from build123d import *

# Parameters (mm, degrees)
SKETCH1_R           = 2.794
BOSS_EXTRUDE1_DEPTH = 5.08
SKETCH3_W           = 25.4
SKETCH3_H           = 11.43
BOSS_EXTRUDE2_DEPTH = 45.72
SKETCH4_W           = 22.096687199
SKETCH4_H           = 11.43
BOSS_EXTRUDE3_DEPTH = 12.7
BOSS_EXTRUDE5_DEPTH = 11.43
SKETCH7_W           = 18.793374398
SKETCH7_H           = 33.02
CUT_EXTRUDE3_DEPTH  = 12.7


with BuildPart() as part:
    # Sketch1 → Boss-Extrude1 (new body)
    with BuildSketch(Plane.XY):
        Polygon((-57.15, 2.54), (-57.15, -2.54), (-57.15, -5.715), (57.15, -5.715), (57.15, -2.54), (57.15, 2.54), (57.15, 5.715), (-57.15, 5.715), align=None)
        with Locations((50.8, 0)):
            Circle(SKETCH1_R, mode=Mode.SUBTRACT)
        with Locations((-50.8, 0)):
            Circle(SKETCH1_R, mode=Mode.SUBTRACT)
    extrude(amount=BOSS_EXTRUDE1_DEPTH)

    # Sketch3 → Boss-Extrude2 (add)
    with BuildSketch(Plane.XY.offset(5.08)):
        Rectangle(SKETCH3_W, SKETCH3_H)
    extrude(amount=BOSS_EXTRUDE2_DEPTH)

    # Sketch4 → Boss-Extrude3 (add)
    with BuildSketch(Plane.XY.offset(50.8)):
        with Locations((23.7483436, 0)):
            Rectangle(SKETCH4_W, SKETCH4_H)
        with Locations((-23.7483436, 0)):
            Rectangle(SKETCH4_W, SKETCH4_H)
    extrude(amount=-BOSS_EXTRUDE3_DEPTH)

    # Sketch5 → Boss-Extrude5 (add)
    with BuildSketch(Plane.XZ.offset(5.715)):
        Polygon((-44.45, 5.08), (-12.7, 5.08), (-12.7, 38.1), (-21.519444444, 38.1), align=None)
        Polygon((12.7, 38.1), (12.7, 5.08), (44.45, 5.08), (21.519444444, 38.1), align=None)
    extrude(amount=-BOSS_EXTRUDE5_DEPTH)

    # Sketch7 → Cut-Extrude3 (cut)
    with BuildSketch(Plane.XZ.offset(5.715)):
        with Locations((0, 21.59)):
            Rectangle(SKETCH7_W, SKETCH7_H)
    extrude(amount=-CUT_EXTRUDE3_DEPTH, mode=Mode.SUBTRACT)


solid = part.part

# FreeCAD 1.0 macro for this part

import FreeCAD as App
import Part
import Sketcher
from FreeCAD import Vector
Q = App.Units.Quantity

doc = App.newDocument("Part")
body = doc.addObject("PartDesign::Body", "Body")

sketch1 = body.newObject("Sketcher::SketchObject", "Sketch")
sketch1.AttachmentSupport = (doc.getObject("XY_Plane"), [""])
sketch1.MapMode = "FlatFace"
sketch1.addGeometry([
    Part.LineSegment(Vector(-57.15, -5.715, 0), Vector(57.15, -5.715, 0)),
    Part.LineSegment(Vector(57.15, -5.715, 0), Vector(57.15, 5.715, 0)),
    Part.LineSegment(Vector(57.15, 5.715, 0), Vector(-57.15, 5.715, 0)),
    Part.LineSegment(Vector(-57.15, 5.715, 0), Vector(-57.15, -5.715, 0)),
    Part.Circle(Vector(-50.8, 0, 0), Vector(0, 0, 1), 2.794),
    Part.Circle(Vector(50.8, 0, 0), Vector(0, 0, 1), 2.794),
], False)
sketch1.addConstraint([
    Sketcher.Constraint("Coincident", 0, 2, 1, 1),
    Sketcher.Constraint("Coincident", 1, 2, 2, 1),
    Sketcher.Constraint("Coincident", 2, 2, 3, 1),
    Sketcher.Constraint("Coincident", 3, 2, 0, 1),
    Sketcher.Constraint("Horizontal", 0),
    Sketcher.Constraint("Vertical", 1),
    Sketcher.Constraint("Horizontal", 2),
    Sketcher.Constraint("Vertical", 3),
    Sketcher.Constraint("Equal", 4, 5),
    Sketcher.Constraint("Symmetric", 4, 3, 5, 3, -1, 1),
    Sketcher.Constraint("Symmetric", 0, 2, 2, 2, -1, 1),
    Sketcher.Constraint("PointOnObject", 4, 3, -1),
    Sketcher.Constraint("Diameter", 4, Q("0.22 in")),
    Sketcher.Constraint("DistanceX", 0, 1, 0, 2, Q("4.5 in")),
    Sketcher.Constraint("DistanceX", 4, 3, -1, 1, Q("2 in")),
    Sketcher.Constraint("DistanceY", 1, 1, 1, 2, Q("0.45 in")),
])
pad1 = body.newObject("PartDesign::Pad", "Pad")
pad1.Profile = sketch1
pad1.Length = Q("0.2 in")

sketch2 = body.newObject("Sketcher::SketchObject", "Sketch001")
sketch2.AttachmentSupport = (doc.getObject("XY_Plane"), [""])
sketch2.MapMode = "FlatFace"
sketch2.AttachmentOffset = App.Placement(Vector(0, 0, 0.2 * 25.4), App.Rotation())
sketch2.addGeometry([
    Part.LineSegment(Vector(-12.7, 5.715, 0), Vector(-12.7, -5.715, 0)),
    Part.LineSegment(Vector(-12.7, -5.715, 0), Vector(12.7, -5.715, 0)),
    Part.LineSegment(Vector(12.7, -5.715, 0), Vector(12.7, 5.715, 0)),
    Part.LineSegment(Vector(12.7, 5.715, 0), Vector(-12.7, 5.715, 0)),
], False)
sketch2.addConstraint([
    Sketcher.Constraint("Coincident", 0, 2, 1, 1),
    Sketcher.Constraint("Coincident", 1, 2, 2, 1),
    Sketcher.Constraint("Coincident", 2, 2, 3, 1),
    Sketcher.Constraint("Coincident", 3, 2, 0, 1),
    Sketcher.Constraint("Vertical", 0),
    Sketcher.Constraint("Horizontal", 1),
    Sketcher.Constraint("Vertical", 2),
    Sketcher.Constraint("Horizontal", 3),
    Sketcher.Constraint("Symmetric", 0, 2, 2, 2, -1, 1),
    Sketcher.Constraint("DistanceX", 1, 1, 1, 2, Q("1 in")),
    Sketcher.Constraint("DistanceY", 0, 2, 0, 1, Q("0.45 in")),
])
pad2 = body.newObject("PartDesign::Pad", "Pad001")
pad2.Profile = sketch2
pad2.Length = Q("1.8 in")

sketch3 = body.newObject("Sketcher::SketchObject", "Sketch002")
sketch3.AttachmentSupport = (doc.getObject("XY_Plane"), [""])
sketch3.MapMode = "FlatFace"
sketch3.AttachmentOffset = App.Placement(Vector(0, 0, 2 * 25.4), App.Rotation())
sketch3.addGeometry([
    Part.LineSegment(Vector(12.7, 5.715, 0), Vector(12.7, -5.715, 0)),
    Part.LineSegment(Vector(12.7, -5.715, 0), Vector(34.796687, -5.715, 0)),
    Part.LineSegment(Vector(34.796687, -5.715, 0), Vector(34.796687, 5.715, 0)),
    Part.LineSegment(Vector(34.796687, 5.715, 0), Vector(12.7, 5.715, 0)),
    Part.LineSegment(Vector(-34.796687, 5.715, 0), Vector(-34.796687, -5.715, 0)),
    Part.LineSegment(Vector(-34.796687, -5.715, 0), Vector(-12.7, -5.715, 0)),
    Part.LineSegment(Vector(-12.7, -5.715, 0), Vector(-12.7, 5.715, 0)),
    Part.LineSegment(Vector(-12.7, 5.715, 0), Vector(-34.796687, 5.715, 0)),
], False)
sketch3.addConstraint([
    Sketcher.Constraint("Coincident", 0, 2, 1, 1),
    Sketcher.Constraint("Coincident", 1, 2, 2, 1),
    Sketcher.Constraint("Coincident", 2, 2, 3, 1),
    Sketcher.Constraint("Coincident", 3, 2, 0, 1),
    Sketcher.Constraint("Coincident", 4, 2, 5, 1),
    Sketcher.Constraint("Coincident", 5, 2, 6, 1),
    Sketcher.Constraint("Coincident", 6, 2, 7, 1),
    Sketcher.Constraint("Coincident", 7, 2, 4, 1),
    Sketcher.Constraint("Vertical", 0),
    Sketcher.Constraint("Horizontal", 1),
    Sketcher.Constraint("Vertical", 2),
    Sketcher.Constraint("Horizontal", 3),
    Sketcher.Constraint("Vertical", 4),
    Sketcher.Constraint("Horizontal", 5),
    Sketcher.Constraint("Vertical", 6),
    Sketcher.Constraint("Horizontal", 7),
    Sketcher.Constraint("Symmetric", 2, 2, 4, 2, -1, 1),
    Sketcher.Constraint("Symmetric", 0, 2, 6, 2, -1, 1),
    Sketcher.Constraint("Horizontal", 1, 2, 4, 2),
    Sketcher.Constraint("DistanceX", 5, 2, 0, 2, Q("1 in")),
    Sketcher.Constraint("DistanceY", 0, 2, 0, 1, Q("0.45 in")),
    Sketcher.Constraint("DistanceX", 1, 1, 1, 2, Q("22.096687 mm")),
])
pad3 = body.newObject("PartDesign::Pad", "Pad002")
pad3.Profile = sketch3
pad3.Length = Q("0.5 in")
pad3.Reversed = True

sketch4 = body.newObject("Sketcher::SketchObject", "Sketch003")
sketch4.AttachmentSupport = (doc.getObject("XZ_Plane"), [""])
sketch4.MapMode = "FlatFace"
sketch4.AttachmentOffset = App.Placement(Vector(0, 0, 0.225 * 25.4), App.Rotation())
sketch4.addGeometry([
    Part.LineSegment(Vector(-44.45, 5.08, 0), Vector(-12.7, 5.08, 0)),
    Part.LineSegment(Vector(-12.7, 5.08, 0), Vector(-12.7, 38.1, 0)),
    Part.LineSegment(Vector(-12.7, 38.1, 0), Vector(-21.519444, 38.1, 0)),
    Part.LineSegment(Vector(-21.519444, 38.1, 0), Vector(-44.45, 5.08, 0)),
    Part.LineSegment(Vector(12.7, 38.1, 0), Vector(12.7, 5.08, 0)),
    Part.LineSegment(Vector(12.7, 5.08, 0), Vector(44.45, 5.08, 0)),
    Part.LineSegment(Vector(44.45, 5.08, 0), Vector(21.519444, 38.1, 0)),
    Part.LineSegment(Vector(21.519444, 38.1, 0), Vector(12.7, 38.1, 0)),
], False)
sketch4.addConstraint([
    Sketcher.Constraint("Coincident", 0, 2, 1, 1),
    Sketcher.Constraint("Coincident", 1, 2, 2, 1),
    Sketcher.Constraint("Coincident", 2, 2, 3, 1),
    Sketcher.Constraint("Coincident", 3, 2, 0, 1),
    Sketcher.Constraint("Coincident", 4, 2, 5, 1),
    Sketcher.Constraint("Coincident", 5, 2, 6, 1),
    Sketcher.Constraint("Coincident", 6, 2, 7, 1),
    Sketcher.Constraint("Coincident", 7, 2, 4, 1),
    Sketcher.Constraint("Horizontal", 0),
    Sketcher.Constraint("Vertical", 1),
    Sketcher.Constraint("Horizontal", 2),
    Sketcher.Constraint("Vertical", 4),
    Sketcher.Constraint("Horizontal", 5),
    Sketcher.Constraint("Horizontal", 7),
    Sketcher.Constraint("Symmetric", 0, 2, 4, 2, -2),
    Sketcher.Constraint("Symmetric", 2, 2, 6, 2, -2),
    Sketcher.Constraint("Equal", 0, 5),
    Sketcher.Constraint("DistanceY", 1, 1, 1, 2, Q("1.3 in")),
    Sketcher.Constraint("DistanceX", 0, 2, 4, 2, Q("1 in")),
    Sketcher.Constraint("DistanceX", 0, 1, 0, 2, Q("1.25 in")),
    Sketcher.Constraint("DistanceY", -1, 1, 0, 2, Q("0.2 in")),
    Sketcher.Constraint("Distance", 3, Q("40.201129 mm")),
])
pad4 = body.newObject("PartDesign::Pad", "Pad003")
pad4.Profile = sketch4
pad4.Length = Q("0.45 in")
pad4.Reversed = True

sketch5 = body.newObject("Sketcher::SketchObject", "Sketch004")
sketch5.AttachmentSupport = (doc.getObject("XZ_Plane"), [""])
sketch5.MapMode = "FlatFace"
sketch5.AttachmentOffset = App.Placement(Vector(0, 0, 0.225 * 25.4), App.Rotation())
sketch5.addGeometry([
    Part.LineSegment(Vector(-9.396687, 38.1, 0), Vector(-9.396687, 5.08, 0)),
    Part.LineSegment(Vector(-9.396687, 5.08, 0), Vector(9.396687, 5.08, 0)),
    Part.LineSegment(Vector(9.396687, 5.08, 0), Vector(9.396687, 38.1, 0)),
    Part.LineSegment(Vector(9.396687, 38.1, 0), Vector(-9.396687, 38.1, 0)),
], False)
sketch5.addConstraint([
    Sketcher.Constraint("Coincident", 0, 2, 1, 1),
    Sketcher.Constraint("Coincident", 1, 2, 2, 1),
    Sketcher.Constraint("Coincident", 2, 2, 3, 1),
    Sketcher.Constraint("Coincident", 3, 2, 0, 1),
    Sketcher.Constraint("Vertical", 0),
    Sketcher.Constraint("Horizontal", 1),
    Sketcher.Constraint("Vertical", 2),
    Sketcher.Constraint("Horizontal", 3),
    Sketcher.Constraint("DistanceY", 0, 2, 0, 1, Q("1.3 in")),
    Sketcher.Constraint("DistanceY", -1, 1, 0, 2, Q("0.2 in")),
    Sketcher.Constraint("DistanceX", 1, 1, 1, 2, Q("18.793374 mm")),
    Sketcher.Constraint("DistanceX", 0, 2, -1, 1, Q("9.396687 mm")),
])
pocket1 = body.newObject("PartDesign::Pocket", "Pocket")
pocket1.Profile = sketch5
pocket1.Length = Q("0.5 in")

doc.recompute()
